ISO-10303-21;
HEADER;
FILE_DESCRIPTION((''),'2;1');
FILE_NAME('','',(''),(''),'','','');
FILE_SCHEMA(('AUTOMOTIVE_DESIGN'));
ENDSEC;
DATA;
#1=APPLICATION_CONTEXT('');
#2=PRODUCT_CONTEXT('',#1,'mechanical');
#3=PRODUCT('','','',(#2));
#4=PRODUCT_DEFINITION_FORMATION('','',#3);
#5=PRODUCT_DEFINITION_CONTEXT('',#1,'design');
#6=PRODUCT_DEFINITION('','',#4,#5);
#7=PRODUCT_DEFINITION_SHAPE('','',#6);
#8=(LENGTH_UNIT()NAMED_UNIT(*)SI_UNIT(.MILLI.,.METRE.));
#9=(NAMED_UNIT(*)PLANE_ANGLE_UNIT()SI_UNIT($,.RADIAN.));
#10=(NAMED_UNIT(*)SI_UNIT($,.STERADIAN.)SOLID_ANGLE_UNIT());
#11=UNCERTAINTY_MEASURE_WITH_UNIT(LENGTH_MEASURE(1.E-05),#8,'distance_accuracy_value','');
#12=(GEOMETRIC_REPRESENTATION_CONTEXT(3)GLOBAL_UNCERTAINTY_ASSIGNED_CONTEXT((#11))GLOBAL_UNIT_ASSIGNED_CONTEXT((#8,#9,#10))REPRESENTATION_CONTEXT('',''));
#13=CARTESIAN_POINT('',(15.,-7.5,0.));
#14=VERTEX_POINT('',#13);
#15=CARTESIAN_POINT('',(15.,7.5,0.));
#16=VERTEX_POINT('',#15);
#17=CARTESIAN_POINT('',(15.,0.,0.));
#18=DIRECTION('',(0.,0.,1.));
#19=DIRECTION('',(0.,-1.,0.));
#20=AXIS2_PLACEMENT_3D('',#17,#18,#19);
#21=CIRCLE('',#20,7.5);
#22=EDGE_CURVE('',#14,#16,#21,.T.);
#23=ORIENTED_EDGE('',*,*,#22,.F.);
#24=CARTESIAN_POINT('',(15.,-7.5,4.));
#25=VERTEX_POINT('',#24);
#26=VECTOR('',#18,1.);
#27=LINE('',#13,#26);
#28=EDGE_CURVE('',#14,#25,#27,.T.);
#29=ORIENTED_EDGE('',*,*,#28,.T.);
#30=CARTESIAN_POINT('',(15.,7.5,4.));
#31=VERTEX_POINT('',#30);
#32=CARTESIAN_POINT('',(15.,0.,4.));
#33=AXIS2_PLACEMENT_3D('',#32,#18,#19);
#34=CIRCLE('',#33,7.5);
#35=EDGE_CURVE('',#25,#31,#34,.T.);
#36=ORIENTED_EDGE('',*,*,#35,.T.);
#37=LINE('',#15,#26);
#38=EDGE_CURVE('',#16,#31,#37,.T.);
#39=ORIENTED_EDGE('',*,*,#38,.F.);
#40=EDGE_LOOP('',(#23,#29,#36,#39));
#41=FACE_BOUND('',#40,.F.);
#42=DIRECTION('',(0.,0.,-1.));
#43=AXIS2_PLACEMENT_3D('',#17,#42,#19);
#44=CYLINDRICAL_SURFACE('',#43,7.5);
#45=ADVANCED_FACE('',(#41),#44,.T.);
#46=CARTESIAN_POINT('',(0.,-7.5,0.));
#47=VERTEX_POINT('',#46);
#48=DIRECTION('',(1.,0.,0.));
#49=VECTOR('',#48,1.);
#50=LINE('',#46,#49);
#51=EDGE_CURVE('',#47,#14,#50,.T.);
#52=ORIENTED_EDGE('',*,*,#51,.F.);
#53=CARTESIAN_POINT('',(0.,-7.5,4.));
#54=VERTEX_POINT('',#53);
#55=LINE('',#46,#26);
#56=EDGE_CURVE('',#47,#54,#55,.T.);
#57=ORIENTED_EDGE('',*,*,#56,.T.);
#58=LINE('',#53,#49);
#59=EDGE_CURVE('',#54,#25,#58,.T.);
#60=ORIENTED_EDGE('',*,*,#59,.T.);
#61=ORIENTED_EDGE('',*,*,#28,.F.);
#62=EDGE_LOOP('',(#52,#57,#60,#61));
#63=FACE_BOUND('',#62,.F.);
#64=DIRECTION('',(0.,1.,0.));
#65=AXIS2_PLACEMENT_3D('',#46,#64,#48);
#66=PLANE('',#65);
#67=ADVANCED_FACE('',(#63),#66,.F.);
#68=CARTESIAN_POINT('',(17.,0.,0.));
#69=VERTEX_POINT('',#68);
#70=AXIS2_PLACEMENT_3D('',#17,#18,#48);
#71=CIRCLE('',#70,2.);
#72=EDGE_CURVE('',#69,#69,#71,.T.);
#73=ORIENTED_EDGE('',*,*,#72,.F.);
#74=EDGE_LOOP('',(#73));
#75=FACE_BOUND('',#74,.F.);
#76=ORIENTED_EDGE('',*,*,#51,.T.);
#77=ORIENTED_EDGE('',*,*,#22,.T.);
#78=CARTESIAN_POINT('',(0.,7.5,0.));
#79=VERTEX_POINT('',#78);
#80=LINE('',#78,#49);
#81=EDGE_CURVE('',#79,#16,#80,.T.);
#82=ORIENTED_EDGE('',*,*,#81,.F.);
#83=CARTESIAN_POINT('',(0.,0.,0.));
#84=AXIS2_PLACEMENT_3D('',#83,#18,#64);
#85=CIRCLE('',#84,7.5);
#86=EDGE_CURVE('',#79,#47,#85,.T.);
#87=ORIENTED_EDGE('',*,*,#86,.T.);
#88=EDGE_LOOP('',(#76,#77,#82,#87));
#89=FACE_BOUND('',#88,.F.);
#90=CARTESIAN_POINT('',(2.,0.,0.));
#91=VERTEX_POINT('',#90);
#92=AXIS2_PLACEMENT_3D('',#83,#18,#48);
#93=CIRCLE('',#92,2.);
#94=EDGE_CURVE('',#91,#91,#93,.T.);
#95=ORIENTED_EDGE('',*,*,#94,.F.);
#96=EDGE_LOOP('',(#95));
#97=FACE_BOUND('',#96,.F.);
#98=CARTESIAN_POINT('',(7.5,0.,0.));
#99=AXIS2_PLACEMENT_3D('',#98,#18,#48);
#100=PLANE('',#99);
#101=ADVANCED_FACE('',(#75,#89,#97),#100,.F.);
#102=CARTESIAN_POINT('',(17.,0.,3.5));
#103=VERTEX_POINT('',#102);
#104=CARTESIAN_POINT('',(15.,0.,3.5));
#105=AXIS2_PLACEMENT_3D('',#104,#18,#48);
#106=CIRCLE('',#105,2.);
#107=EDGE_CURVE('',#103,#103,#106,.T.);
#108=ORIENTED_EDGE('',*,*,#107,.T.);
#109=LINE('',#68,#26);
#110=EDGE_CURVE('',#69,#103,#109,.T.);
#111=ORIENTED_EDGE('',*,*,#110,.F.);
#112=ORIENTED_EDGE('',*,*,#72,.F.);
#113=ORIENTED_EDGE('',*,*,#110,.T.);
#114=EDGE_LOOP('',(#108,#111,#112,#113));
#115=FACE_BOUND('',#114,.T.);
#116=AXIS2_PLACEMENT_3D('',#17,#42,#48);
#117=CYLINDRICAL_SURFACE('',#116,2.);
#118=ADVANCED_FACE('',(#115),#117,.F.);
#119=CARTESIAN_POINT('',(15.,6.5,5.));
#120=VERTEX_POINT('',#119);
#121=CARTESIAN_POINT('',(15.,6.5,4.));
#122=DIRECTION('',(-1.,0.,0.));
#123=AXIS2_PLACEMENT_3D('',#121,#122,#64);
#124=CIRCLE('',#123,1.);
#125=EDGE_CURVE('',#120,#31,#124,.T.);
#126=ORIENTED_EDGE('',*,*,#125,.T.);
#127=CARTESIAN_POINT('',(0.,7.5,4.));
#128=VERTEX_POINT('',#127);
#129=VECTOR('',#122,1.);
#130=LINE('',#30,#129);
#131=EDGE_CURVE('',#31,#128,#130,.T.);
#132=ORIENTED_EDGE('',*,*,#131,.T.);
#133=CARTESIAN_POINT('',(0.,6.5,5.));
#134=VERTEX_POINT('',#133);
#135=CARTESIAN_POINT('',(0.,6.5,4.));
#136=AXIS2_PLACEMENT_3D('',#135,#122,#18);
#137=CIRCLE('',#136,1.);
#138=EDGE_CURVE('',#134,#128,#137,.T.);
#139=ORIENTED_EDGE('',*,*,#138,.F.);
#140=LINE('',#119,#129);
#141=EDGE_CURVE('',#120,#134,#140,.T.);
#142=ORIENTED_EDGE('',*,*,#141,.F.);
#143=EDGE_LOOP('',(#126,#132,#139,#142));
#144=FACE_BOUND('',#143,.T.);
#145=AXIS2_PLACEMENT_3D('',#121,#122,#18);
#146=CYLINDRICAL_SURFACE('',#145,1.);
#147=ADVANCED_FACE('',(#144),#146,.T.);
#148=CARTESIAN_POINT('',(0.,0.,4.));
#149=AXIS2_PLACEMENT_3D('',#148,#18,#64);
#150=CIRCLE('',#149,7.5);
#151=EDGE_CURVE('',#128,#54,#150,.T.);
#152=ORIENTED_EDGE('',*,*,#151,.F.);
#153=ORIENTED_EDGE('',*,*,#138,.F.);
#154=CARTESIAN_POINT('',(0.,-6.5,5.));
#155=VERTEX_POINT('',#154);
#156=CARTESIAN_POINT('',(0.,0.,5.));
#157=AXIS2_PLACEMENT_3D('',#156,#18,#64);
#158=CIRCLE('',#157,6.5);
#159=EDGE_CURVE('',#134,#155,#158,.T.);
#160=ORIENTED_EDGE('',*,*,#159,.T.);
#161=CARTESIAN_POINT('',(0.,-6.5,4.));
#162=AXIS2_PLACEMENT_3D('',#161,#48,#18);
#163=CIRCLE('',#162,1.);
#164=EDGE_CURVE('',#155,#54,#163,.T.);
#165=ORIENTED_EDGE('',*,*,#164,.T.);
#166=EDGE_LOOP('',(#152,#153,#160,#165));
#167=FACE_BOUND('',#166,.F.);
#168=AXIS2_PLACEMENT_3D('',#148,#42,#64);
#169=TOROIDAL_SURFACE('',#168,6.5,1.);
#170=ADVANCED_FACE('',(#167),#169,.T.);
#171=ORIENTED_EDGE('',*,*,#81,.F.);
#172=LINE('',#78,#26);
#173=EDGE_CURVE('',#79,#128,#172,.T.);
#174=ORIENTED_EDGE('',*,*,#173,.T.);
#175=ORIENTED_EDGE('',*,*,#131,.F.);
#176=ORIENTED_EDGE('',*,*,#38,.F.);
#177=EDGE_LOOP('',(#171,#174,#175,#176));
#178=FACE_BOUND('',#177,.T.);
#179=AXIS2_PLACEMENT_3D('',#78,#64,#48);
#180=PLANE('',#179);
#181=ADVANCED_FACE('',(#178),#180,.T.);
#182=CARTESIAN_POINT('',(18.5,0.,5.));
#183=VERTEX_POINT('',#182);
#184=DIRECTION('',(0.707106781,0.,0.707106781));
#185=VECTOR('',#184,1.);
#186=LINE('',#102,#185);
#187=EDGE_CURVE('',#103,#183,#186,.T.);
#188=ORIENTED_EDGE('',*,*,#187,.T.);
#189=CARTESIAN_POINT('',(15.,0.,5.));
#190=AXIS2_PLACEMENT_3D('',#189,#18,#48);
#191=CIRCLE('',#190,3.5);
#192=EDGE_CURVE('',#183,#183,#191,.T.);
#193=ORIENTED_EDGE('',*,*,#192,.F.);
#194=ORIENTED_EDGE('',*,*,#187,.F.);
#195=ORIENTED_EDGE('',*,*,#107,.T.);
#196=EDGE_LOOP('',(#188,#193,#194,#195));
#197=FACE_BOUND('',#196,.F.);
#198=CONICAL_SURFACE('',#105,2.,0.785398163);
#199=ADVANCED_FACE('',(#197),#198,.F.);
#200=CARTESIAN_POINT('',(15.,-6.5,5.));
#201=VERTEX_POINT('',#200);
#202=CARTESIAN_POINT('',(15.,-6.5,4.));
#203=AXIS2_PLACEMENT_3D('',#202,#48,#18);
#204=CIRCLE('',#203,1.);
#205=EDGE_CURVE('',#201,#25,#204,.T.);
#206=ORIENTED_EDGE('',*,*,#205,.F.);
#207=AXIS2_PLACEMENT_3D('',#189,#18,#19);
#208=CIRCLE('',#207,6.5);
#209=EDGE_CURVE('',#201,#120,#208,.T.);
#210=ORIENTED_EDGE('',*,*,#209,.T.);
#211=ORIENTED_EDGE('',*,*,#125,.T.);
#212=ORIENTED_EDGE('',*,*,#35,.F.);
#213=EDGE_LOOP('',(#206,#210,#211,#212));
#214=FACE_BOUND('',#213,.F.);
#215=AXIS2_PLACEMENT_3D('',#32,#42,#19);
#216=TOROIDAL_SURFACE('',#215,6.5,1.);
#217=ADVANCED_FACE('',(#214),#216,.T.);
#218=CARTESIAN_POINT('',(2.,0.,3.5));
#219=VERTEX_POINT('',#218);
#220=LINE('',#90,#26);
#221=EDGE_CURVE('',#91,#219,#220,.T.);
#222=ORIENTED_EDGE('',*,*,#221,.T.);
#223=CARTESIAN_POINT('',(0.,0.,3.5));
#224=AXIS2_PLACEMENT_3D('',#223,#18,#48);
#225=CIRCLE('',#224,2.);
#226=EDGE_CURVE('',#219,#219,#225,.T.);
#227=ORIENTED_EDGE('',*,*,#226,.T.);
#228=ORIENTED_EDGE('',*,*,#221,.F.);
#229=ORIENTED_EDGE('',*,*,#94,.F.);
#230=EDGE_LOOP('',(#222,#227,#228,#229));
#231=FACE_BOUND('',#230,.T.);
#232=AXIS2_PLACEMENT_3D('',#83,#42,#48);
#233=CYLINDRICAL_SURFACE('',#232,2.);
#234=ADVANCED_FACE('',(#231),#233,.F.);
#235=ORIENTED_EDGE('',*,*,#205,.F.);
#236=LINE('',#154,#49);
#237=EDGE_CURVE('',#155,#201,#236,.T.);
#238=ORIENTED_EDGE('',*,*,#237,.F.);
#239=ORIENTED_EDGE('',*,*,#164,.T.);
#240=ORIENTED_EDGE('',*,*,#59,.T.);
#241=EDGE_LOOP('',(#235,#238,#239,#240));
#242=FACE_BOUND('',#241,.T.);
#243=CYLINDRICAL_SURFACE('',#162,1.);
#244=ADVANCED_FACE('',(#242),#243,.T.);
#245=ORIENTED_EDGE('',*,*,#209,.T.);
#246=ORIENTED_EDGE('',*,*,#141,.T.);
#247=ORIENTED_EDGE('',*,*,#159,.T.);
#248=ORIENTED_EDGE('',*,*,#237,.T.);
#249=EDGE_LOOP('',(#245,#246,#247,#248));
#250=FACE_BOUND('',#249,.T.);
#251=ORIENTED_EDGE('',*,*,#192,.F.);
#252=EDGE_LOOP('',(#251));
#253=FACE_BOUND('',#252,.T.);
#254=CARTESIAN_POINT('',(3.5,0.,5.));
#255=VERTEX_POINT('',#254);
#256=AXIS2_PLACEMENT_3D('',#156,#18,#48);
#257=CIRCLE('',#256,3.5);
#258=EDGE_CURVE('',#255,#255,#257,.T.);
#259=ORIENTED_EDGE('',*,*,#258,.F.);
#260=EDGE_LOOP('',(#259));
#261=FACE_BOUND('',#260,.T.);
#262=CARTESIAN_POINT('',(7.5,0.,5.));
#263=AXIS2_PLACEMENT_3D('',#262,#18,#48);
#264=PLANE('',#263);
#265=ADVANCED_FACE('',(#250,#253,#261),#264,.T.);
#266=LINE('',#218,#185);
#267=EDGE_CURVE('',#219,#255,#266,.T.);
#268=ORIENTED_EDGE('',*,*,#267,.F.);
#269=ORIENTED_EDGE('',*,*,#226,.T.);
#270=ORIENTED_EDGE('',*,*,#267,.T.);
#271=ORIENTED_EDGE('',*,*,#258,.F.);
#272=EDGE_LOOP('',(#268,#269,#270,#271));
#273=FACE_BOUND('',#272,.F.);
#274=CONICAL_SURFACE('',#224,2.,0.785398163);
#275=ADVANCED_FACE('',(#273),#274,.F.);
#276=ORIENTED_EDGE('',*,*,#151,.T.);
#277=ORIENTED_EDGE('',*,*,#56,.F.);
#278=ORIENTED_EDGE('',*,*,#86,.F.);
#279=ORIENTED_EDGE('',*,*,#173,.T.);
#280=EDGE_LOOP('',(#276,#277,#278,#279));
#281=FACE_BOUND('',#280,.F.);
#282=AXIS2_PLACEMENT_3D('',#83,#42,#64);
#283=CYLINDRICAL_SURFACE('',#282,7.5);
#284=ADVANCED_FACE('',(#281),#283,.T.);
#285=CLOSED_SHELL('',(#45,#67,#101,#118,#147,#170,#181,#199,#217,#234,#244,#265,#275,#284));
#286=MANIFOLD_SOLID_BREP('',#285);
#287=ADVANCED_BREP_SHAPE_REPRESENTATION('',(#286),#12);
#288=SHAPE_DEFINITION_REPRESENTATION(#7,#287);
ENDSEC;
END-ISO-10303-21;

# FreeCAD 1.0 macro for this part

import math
import FreeCAD as App
import Part
import Sketcher
from FreeCAD import Vector
Q = App.Units.Quantity


def edges_at(feature, points):
    """Names of the edges that pass closest to the given points."""
    edges = feature.Shape.Edges
    near = lambda p: min(range(len(edges)), key=lambda i: edges[i].distToShape(Part.Vertex(*p))[0])
    return sorted({f"Edge{near(p) + 1}" for p in points})

doc = App.newDocument("Part")
body = doc.addObject("PartDesign::Body", "Body")

sketch1 = doc.addObject("Sketcher::SketchObject", "Sketch")
body.addObject(sketch1)
sketch1.AttachmentSupport = (doc.XY_Plane, [""])
sketch1.MapMode = "FlatFace"
sketch1.addGeometry([
    Part.ArcOfCircle(Part.Circle(Vector(0, 0, 0), Vector(0, 0, 1), 7.5), math.radians(90), math.radians(270)),
    Part.LineSegment(Vector(0, -7.5, 0), Vector(15, -7.5, 0)),
    Part.ArcOfCircle(Part.Circle(Vector(15, 0, 0), Vector(0, 0, 1), 7.5), math.radians(-90), math.radians(90)),
    Part.LineSegment(Vector(15, 7.5, 0), Vector(0, 7.5, 0)),
    Part.Circle(Vector(0, 0, 0), Vector(0, 0, 1), 2),
    Part.Circle(Vector(15, 0, 0), Vector(0, 0, 1), 2),
], False)
sketch1.addConstraint([
    Sketcher.Constraint("Tangent", 0, 2, 1, 1),
    Sketcher.Constraint("Tangent", 1, 2, 2, 1),
    Sketcher.Constraint("Tangent", 2, 2, 3, 1),
    Sketcher.Constraint("Tangent", 3, 2, 0, 1),
    Sketcher.Constraint("Horizontal", 1),
    Sketcher.Constraint("Horizontal", 3),
    Sketcher.Constraint("Coincident", 0, 3, -1, 1),
    Sketcher.Constraint("Coincident", 4, 3, -1, 1),
    Sketcher.Constraint("Coincident", 5, 3, 2, 3),
    Sketcher.Constraint("Equal", 4, 5),
    Sketcher.Constraint("Diameter", 4, Q("4 mm")),
    Sketcher.Constraint("Radius", 0, Q("7.5 mm")),
    Sketcher.Constraint("DistanceX", 1, 1, 1, 2, Q("15 mm")),
])
pad1 = doc.addObject("PartDesign::Pad", "Pad")
body.addObject(pad1)
pad1.Profile = sketch1
pad1.Length = 5
doc.recompute()

chamfer = doc.addObject("PartDesign::Chamfer", "Chamfer")
body.addObject(chamfer)
chamfer.Base = (pad1, edges_at(pad1, [(-2, 0, 5), (13, 0, 5)]))
chamfer.Size = 1.5
doc.recompute()

fillet = doc.addObject("PartDesign::Fillet", "Fillet")
body.addObject(fillet)
fillet.Base = (chamfer, edges_at(chamfer, [(7.5, -7.5, 5)]))
fillet.Radius = 1

doc.recompute()
